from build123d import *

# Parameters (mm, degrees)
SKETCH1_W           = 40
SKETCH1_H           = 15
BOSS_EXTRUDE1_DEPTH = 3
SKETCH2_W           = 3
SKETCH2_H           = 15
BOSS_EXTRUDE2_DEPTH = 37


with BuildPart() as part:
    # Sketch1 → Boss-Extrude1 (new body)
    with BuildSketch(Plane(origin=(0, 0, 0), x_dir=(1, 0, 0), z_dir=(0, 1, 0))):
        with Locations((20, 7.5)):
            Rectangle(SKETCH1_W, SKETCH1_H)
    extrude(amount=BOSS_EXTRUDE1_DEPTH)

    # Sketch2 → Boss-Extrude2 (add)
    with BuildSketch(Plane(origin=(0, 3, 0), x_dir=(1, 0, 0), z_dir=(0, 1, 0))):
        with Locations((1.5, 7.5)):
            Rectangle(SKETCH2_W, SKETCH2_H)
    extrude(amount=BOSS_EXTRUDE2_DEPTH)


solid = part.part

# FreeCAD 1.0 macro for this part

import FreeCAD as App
import Part
import Sketcher
Q = App.Units.Quantity

doc = App.newDocument("Part")
body = doc.addObject("PartDesign::Body", "Body")

sketch1 = body.newObject("Sketcher::SketchObject", "Sketch")
sketch1.AttachmentSupport = (doc.getObject("XZ_Plane"), [""])
sketch1.MapMode = "FlatFace"
sketch1.addGeometry([
    Part.LineSegment(App.Vector(0, -15, 0), App.Vector(0, 0, 0)),
    Part.LineSegment(App.Vector(0, 0, 0), App.Vector(40, 0, 0)),
    Part.LineSegment(App.Vector(40, 0, 0), App.Vector(40, -15, 0)),
    Part.LineSegment(App.Vector(40, -15, 0), App.Vector(0, -15, 0)),
], False)
sketch1.addConstraint([
    Sketcher.Constraint("Coincident", 0, 2, 1, 1),
    Sketcher.Constraint("Coincident", 1, 2, 2, 1),
    Sketcher.Constraint("Coincident", 2, 2, 3, 1),
    Sketcher.Constraint("Coincident", 3, 2, 0, 1),
    Sketcher.Constraint("Vertical", 0),
    Sketcher.Constraint("Horizontal", 1),
    Sketcher.Constraint("Vertical", 2),
    Sketcher.Constraint("Horizontal", 3),
    Sketcher.Constraint("Coincident", 0, 2, -1, 1),
    Sketcher.Constraint("DistanceX", 1, 1, 1, 2, Q("40 mm")),
    Sketcher.Constraint("DistanceY", 0, 1, 0, 2, Q("15 mm")),
])
pad1 = body.newObject("PartDesign::Pad", "Pad")
pad1.Profile = sketch1
pad1.Length = 3
pad1.Reversed = True

sketch2 = body.newObject("Sketcher::SketchObject", "Sketch001")
sketch2.AttachmentSupport = (doc.getObject("XZ_Plane"), [""])
sketch2.MapMode = "FlatFace"
sketch2.AttachmentOffset = App.Placement(App.Vector(0, 0, -3), App.Rotation())
sketch2.addGeometry([
    Part.LineSegment(App.Vector(0, -15, 0), App.Vector(0, 0, 0)),
    Part.LineSegment(App.Vector(0, 0, 0), App.Vector(3, 0, 0)),
    Part.LineSegment(App.Vector(3, 0, 0), App.Vector(3, -15, 0)),
    Part.LineSegment(App.Vector(3, -15, 0), App.Vector(0, -15, 0)),
], False)
sketch2.addConstraint([
    Sketcher.Constraint("Coincident", 0, 2, 1, 1),
    Sketcher.Constraint("Coincident", 1, 2, 2, 1),
    Sketcher.Constraint("Coincident", 2, 2, 3, 1),
    Sketcher.Constraint("Coincident", 3, 2, 0, 1),
    Sketcher.Constraint("Vertical", 0),
    Sketcher.Constraint("Horizontal", 1),
    Sketcher.Constraint("Vertical", 2),
    Sketcher.Constraint("Horizontal", 3),
    Sketcher.Constraint("Coincident", 0, 2, -1, 1),
    Sketcher.Constraint("DistanceX", 1, 1, 1, 2, Q("3 mm")),
    Sketcher.Constraint("DistanceY", 0, 1, 0, 2, Q("15 mm")),
])
pad2 = body.newObject("PartDesign::Pad", "Pad001")
pad2.Profile = sketch2
pad2.Length = 37
pad2.Reversed = True

doc.recompute()
